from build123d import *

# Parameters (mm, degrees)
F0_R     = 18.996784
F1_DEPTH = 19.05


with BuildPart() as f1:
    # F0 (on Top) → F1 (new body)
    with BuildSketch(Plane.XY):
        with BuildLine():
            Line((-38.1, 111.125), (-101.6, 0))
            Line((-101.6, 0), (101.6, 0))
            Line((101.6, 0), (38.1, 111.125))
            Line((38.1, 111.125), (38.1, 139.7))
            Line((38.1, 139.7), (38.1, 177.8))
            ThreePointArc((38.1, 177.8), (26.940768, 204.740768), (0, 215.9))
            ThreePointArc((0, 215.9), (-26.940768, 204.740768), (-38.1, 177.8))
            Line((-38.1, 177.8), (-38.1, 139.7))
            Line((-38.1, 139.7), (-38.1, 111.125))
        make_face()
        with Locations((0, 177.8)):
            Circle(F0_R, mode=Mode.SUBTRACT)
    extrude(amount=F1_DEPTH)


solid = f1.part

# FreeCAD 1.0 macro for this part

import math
import FreeCAD as App
import Part
import Sketcher
Q = App.Units.Quantity

doc = App.newDocument("Part")
body = doc.addObject("PartDesign::Body", "Body")

# Sketch on XY plane
sketch1 = doc.addObject("Sketcher::SketchObject", "Sketch")
body.addObject(sketch1)
sketch1.AttachmentSupport = (doc.XY_Plane, [""])
sketch1.MapMode = "FlatFace"
sketch1.addGeometry([
    Part.LineSegment(App.Vector(-38, 111, 0), App.Vector(-102, 0, 0)),  # 0
    Part.LineSegment(App.Vector(-102, 0, 0), App.Vector(102, 0, 0)),  # 1
    Part.LineSegment(App.Vector(102, 0, 0), App.Vector(38, 111, 0)),  # 2
    Part.LineSegment(App.Vector(38, 111, 0), App.Vector(38, 178, 0)),  # 3
    Part.ArcOfCircle(Part.Circle(App.Vector(0, 178, 0), App.Vector(0, 0, 1), 38), math.radians(0), math.radians(90)),  # 4
    Part.ArcOfCircle(Part.Circle(App.Vector(0, 178, 0), App.Vector(0, 0, 1), 38), math.radians(90), math.radians(180)),  # 5
    Part.LineSegment(App.Vector(-38, 178, 0), App.Vector(-38, 111, 0)),  # 6
    Part.Circle(App.Vector(0, 178, 0), App.Vector(0, 0, 1), 19),  # 7
], False)
sketch1.addConstraint([
    Sketcher.Constraint("Coincident", 0, 2, 1, 1),
    Sketcher.Constraint("Coincident", 1, 2, 2, 1),
    Sketcher.Constraint("Coincident", 2, 2, 3, 1),
    Sketcher.Constraint("Tangent", 3, 2, 4, 1),
    Sketcher.Constraint("Tangent", 4, 2, 5, 1),
    Sketcher.Constraint("Tangent", 5, 2, 6, 1),
    Sketcher.Constraint("Coincident", 6, 2, 0, 1),
    Sketcher.Constraint("Horizontal", 1),
    Sketcher.Constraint("Vertical", 3),
    Sketcher.Constraint("Vertical", 6),
    Sketcher.Constraint("Coincident", 7, 3, 4, 3),
    Sketcher.Constraint("Equal", 4, 5),
    Sketcher.Constraint("Symmetric", 0, 2, 1, 2, -1, 1),
    Sketcher.Constraint("Symmetric", 2, 2, 6, 2, -2),
    Sketcher.Constraint("PointOnObject", 4, 2, -2),
    Sketcher.Constraint("Radius", 4, Q("1.5 in")),
    Sketcher.Constraint("DistanceX", 1, 1, 1, 2, Q("8 in")),
    Sketcher.Constraint("DistanceY", -1, 1, 4, 3, Q("7 in")),
    Sketcher.Constraint("DistanceY", 3, 1, 3, 2, Q("2.625 in")),
    Sketcher.Constraint("Diameter", 7, Q("37.993568 mm")),
])
pad1 = doc.addObject("PartDesign::Pad", "Pad")
body.addObject(pad1)
pad1.Profile = sketch1
pad1.Length = Q("0.75 in")

doc.recompute()
